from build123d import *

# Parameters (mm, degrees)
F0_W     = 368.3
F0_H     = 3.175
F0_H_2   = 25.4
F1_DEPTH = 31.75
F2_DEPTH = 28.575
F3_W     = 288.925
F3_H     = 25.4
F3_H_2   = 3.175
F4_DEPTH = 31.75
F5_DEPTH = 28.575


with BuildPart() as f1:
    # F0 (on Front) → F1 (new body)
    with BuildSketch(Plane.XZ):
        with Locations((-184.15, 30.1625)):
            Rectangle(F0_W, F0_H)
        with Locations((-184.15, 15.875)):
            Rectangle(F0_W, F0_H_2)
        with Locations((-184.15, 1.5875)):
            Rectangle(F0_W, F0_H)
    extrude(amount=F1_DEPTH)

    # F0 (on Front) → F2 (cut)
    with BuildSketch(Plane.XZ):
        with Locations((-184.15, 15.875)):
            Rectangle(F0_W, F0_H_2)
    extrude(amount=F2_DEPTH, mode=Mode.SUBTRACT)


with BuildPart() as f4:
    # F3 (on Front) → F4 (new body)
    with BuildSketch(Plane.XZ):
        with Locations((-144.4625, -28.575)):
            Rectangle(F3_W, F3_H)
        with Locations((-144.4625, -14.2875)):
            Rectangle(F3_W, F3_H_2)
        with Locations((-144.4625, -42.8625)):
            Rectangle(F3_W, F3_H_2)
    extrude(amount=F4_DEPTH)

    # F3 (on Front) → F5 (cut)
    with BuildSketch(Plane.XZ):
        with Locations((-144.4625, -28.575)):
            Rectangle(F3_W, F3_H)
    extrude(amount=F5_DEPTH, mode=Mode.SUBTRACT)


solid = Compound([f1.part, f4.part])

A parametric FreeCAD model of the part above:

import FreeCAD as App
import Part
import Sketcher

V = App.Vector
Q = App.Units.Quantity


def add_polygon(sketch, points):
    """Adds a closed chain of lines whose ends are joined by coincident constraints."""
    first, n = sketch.GeometryCount, len(points)
    for a, b in zip(points, points[1:] + points[:1]):
        sketch.addGeometry(Part.LineSegment(App.Vector(*a, 0), App.Vector(*b, 0)), False)
    for i in range(n):
        sketch.addConstraint(Sketcher.Constraint("Coincident", first + i, 2, first + (i + 1) % n, 1))

doc = App.newDocument("Part")
params = doc.addObject("Spreadsheet::Sheet", "Params")
for row, (alias, value) in enumerate([
    ("sketch1_width", "14.5 in"),
    ("sketch1_height", "1.25 in"),
    ("pad1_length", "1.25 in"),
    ("sketch2_height", "1 in"),
    ("sketch2_width", "14.5 in"),
    ("pocket1_length", "1.125 in"),
    ("sketch3_height", "1.25 in"),
    ("sketch3_width", "11.375 in"),
    ("pad2_length", "1.25 in"),
    ("sketch4_height", "1 in"),
    ("sketch4_width", "11.375 in"),
    ("pocket2_length", "1.125 in"),
], start=1):
    params.set(f"A{row}", alias)
    params.set(f"B{row}", "=" + value)
    params.setAlias(f"B{row}", alias)

body = doc.addObject("PartDesign::Body", "Body")

# Sketch on XZ plane
sketch1 = doc.addObject("Sketcher::SketchObject", "Sketch")
body.addObject(sketch1)
sketch1.AttachmentSupport = (doc.XZ_Plane, [""])
sketch1.MapMode = "FlatFace"
add_polygon(sketch1, [(-368, 32), (-368, 0), (0, 0), (0, 32)])  # lines 0-3
sketch1.addConstraint([
    Sketcher.Constraint("Vertical", 0),
    Sketcher.Constraint("Horizontal", 1),
    Sketcher.Constraint("Vertical", 2),
    Sketcher.Constraint("Horizontal", 3),
    Sketcher.Constraint("Coincident", 1, 2, -1, 1),
    Sketcher.Constraint("DistanceX", 1, 1, 1, 2, Q("14.5 in")),
    Sketcher.Constraint("DistanceY", 0, 2, 0, 1, Q("1.25 in")),
])
sketch1.setExpression("Constraints[9]", "Params.sketch1_width")
sketch1.setExpression("Constraints[10]", "Params.sketch1_height")
pad1 = doc.addObject("PartDesign::Pad", "Pad")
body.addObject(pad1)
pad1.Profile = sketch1
pad1.setExpression("Length", "Params.pad1_length")

# Sketch on XZ plane
sketch2 = doc.addObject("Sketcher::SketchObject", "Sketch001")
body.addObject(sketch2)
sketch2.AttachmentSupport = (doc.XZ_Plane, [""])
sketch2.MapMode = "FlatFace"
add_polygon(sketch2, [(-368, 29), (-368, 3), (0, 3), (0, 29)])  # lines 0-3
sketch2.addConstraint([
    Sketcher.Constraint("Vertical", 0),
    Sketcher.Constraint("Horizontal", 1),
    Sketcher.Constraint("Vertical", 2),
    Sketcher.Constraint("Horizontal", 3),
    Sketcher.Constraint("PointOnObject", 1, 2, -2),
    Sketcher.Constraint("DistanceY", 0, 2, 0, 1, Q("1 in")),
    Sketcher.Constraint("DistanceX", 1, 1, 1, 2, Q("14.5 in")),
    Sketcher.Constraint("DistanceY", -1, 1, 0, 2, Q("0.125 in")),
])
sketch2.setExpression("Constraints[9]", "Params.sketch2_height")
sketch2.setExpression("Constraints[10]", "Params.sketch2_width")
pocket1 = doc.addObject("PartDesign::Pocket", "Pocket")
body.addObject(pocket1)
pocket1.Profile = sketch2
pocket1.setExpression("Length", "Params.pocket1_length")
pocket1.Reversed = True
body2 = doc.addObject("PartDesign::Body", "Body001")

# Sketch on XZ plane
sketch3 = doc.addObject("Sketcher::SketchObject", "Sketch002")
body2.addObject(sketch3)
sketch3.AttachmentSupport = (doc.getObject("XZ_Plane001"), [""])
sketch3.MapMode = "FlatFace"
add_polygon(sketch3, [(0, -13), (-289, -13), (-289, -44), (0, -44)])  # lines 0-3
sketch3.addConstraint([
    Sketcher.Constraint("Horizontal", 0),
    Sketcher.Constraint("Vertical", 1),
    Sketcher.Constraint("Horizontal", 2),
    Sketcher.Constraint("Vertical", 3),
    Sketcher.Constraint("PointOnObject", 2, 2, -2),
    Sketcher.Constraint("DistanceY", 1, 2, 1, 1, Q("1.25 in")),
    Sketcher.Constraint("DistanceY", 0, 2, -1, 1, Q("0.5 in")),
    Sketcher.Constraint("DistanceX", 0, 2, 0, 1, Q("11.375 in")),
])
sketch3.setExpression("Constraints[9]", "Params.sketch3_height")
sketch3.setExpression("Constraints[11]", "Params.sketch3_width")
pad2 = doc.addObject("PartDesign::Pad", "Pad001")
body2.addObject(pad2)
pad2.Profile = sketch3
pad2.setExpression("Length", "Params.pad2_length")

# Sketch on XZ plane
sketch4 = doc.addObject("Sketcher::SketchObject", "Sketch003")
body2.addObject(sketch4)
sketch4.AttachmentSupport = (doc.getObject("XZ_Plane001"), [""])
sketch4.MapMode = "FlatFace"
add_polygon(sketch4, [(-289, -16), (-289, -41), (0, -41), (0, -16)])  # lines 0-3
sketch4.addConstraint([
    Sketcher.Constraint("Vertical", 0),
    Sketcher.Constraint("Horizontal", 1),
    Sketcher.Constraint("Vertical", 2),
    Sketcher.Constraint("Horizontal", 3),
    Sketcher.Constraint("PointOnObject", 1, 2, -2),
    Sketcher.Constraint("DistanceY", 0, 2, 0, 1, Q("1 in")),
    Sketcher.Constraint("DistanceX", 1, 1, 1, 2, Q("11.375 in")),
    Sketcher.Constraint("DistanceY", 0, 2, -1, 1, Q("1.625 in")),
])
sketch4.setExpression("Constraints[9]", "Params.sketch4_height")
sketch4.setExpression("Constraints[10]", "Params.sketch4_width")
pocket2 = doc.addObject("PartDesign::Pocket", "Pocket001")
body2.addObject(pocket2)
pocket2.Profile = sketch4
pocket2.setExpression("Length", "Params.pocket2_length")
pocket2.Reversed = True

doc.recompute()
